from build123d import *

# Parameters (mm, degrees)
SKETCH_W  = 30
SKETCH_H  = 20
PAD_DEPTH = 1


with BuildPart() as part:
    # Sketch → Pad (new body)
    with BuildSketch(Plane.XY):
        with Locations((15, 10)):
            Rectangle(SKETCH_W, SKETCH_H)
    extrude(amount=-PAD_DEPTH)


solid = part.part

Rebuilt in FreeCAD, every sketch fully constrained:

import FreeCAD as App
import Part
import Sketcher
Q = App.Units.Quantity


def add_polygon(sketch, points):
    """Adds a closed chain of lines whose ends are joined by coincident constraints."""
    first, n = sketch.GeometryCount, len(points)
    for a, b in zip(points, points[1:] + points[:1]):
        sketch.addGeometry(Part.LineSegment(App.Vector(*a, 0), App.Vector(*b, 0)), False)
    for i in range(n):
        sketch.addConstraint(Sketcher.Constraint("Coincident", first + i, 2, first + (i + 1) % n, 1))

doc = App.newDocument("Part")
body = doc.addObject("PartDesign::Body", "Body")

sketch1 = doc.addObject("Sketcher::SketchObject", "Sketch")
body.addObject(sketch1)
sketch1.AttachmentSupport = (doc.XY_Plane, [""])
sketch1.MapMode = "FlatFace"
add_polygon(sketch1, [(0, 20), (0, 0), (30, 0), (30, 20)])
sketch1.addConstraint([
    Sketcher.Constraint("Vertical", 0),
    Sketcher.Constraint("Horizontal", 1),
    Sketcher.Constraint("Vertical", 2),
    Sketcher.Constraint("Horizontal", 3),
    Sketcher.Constraint("Coincident", 0, 2, -1, 1),
    Sketcher.Constraint("DistanceX", 1, 1, 1, 2, Q("30 mm")),
    Sketcher.Constraint("DistanceY", 0, 2, 0, 1, Q("20 mm")),
])
pad1 = doc.addObject("PartDesign::Pad", "Pad")
body.addObject(pad1)
pad1.Profile = sketch1
pad1.Length = 1
pad1.Reversed = True

doc.recompute()
